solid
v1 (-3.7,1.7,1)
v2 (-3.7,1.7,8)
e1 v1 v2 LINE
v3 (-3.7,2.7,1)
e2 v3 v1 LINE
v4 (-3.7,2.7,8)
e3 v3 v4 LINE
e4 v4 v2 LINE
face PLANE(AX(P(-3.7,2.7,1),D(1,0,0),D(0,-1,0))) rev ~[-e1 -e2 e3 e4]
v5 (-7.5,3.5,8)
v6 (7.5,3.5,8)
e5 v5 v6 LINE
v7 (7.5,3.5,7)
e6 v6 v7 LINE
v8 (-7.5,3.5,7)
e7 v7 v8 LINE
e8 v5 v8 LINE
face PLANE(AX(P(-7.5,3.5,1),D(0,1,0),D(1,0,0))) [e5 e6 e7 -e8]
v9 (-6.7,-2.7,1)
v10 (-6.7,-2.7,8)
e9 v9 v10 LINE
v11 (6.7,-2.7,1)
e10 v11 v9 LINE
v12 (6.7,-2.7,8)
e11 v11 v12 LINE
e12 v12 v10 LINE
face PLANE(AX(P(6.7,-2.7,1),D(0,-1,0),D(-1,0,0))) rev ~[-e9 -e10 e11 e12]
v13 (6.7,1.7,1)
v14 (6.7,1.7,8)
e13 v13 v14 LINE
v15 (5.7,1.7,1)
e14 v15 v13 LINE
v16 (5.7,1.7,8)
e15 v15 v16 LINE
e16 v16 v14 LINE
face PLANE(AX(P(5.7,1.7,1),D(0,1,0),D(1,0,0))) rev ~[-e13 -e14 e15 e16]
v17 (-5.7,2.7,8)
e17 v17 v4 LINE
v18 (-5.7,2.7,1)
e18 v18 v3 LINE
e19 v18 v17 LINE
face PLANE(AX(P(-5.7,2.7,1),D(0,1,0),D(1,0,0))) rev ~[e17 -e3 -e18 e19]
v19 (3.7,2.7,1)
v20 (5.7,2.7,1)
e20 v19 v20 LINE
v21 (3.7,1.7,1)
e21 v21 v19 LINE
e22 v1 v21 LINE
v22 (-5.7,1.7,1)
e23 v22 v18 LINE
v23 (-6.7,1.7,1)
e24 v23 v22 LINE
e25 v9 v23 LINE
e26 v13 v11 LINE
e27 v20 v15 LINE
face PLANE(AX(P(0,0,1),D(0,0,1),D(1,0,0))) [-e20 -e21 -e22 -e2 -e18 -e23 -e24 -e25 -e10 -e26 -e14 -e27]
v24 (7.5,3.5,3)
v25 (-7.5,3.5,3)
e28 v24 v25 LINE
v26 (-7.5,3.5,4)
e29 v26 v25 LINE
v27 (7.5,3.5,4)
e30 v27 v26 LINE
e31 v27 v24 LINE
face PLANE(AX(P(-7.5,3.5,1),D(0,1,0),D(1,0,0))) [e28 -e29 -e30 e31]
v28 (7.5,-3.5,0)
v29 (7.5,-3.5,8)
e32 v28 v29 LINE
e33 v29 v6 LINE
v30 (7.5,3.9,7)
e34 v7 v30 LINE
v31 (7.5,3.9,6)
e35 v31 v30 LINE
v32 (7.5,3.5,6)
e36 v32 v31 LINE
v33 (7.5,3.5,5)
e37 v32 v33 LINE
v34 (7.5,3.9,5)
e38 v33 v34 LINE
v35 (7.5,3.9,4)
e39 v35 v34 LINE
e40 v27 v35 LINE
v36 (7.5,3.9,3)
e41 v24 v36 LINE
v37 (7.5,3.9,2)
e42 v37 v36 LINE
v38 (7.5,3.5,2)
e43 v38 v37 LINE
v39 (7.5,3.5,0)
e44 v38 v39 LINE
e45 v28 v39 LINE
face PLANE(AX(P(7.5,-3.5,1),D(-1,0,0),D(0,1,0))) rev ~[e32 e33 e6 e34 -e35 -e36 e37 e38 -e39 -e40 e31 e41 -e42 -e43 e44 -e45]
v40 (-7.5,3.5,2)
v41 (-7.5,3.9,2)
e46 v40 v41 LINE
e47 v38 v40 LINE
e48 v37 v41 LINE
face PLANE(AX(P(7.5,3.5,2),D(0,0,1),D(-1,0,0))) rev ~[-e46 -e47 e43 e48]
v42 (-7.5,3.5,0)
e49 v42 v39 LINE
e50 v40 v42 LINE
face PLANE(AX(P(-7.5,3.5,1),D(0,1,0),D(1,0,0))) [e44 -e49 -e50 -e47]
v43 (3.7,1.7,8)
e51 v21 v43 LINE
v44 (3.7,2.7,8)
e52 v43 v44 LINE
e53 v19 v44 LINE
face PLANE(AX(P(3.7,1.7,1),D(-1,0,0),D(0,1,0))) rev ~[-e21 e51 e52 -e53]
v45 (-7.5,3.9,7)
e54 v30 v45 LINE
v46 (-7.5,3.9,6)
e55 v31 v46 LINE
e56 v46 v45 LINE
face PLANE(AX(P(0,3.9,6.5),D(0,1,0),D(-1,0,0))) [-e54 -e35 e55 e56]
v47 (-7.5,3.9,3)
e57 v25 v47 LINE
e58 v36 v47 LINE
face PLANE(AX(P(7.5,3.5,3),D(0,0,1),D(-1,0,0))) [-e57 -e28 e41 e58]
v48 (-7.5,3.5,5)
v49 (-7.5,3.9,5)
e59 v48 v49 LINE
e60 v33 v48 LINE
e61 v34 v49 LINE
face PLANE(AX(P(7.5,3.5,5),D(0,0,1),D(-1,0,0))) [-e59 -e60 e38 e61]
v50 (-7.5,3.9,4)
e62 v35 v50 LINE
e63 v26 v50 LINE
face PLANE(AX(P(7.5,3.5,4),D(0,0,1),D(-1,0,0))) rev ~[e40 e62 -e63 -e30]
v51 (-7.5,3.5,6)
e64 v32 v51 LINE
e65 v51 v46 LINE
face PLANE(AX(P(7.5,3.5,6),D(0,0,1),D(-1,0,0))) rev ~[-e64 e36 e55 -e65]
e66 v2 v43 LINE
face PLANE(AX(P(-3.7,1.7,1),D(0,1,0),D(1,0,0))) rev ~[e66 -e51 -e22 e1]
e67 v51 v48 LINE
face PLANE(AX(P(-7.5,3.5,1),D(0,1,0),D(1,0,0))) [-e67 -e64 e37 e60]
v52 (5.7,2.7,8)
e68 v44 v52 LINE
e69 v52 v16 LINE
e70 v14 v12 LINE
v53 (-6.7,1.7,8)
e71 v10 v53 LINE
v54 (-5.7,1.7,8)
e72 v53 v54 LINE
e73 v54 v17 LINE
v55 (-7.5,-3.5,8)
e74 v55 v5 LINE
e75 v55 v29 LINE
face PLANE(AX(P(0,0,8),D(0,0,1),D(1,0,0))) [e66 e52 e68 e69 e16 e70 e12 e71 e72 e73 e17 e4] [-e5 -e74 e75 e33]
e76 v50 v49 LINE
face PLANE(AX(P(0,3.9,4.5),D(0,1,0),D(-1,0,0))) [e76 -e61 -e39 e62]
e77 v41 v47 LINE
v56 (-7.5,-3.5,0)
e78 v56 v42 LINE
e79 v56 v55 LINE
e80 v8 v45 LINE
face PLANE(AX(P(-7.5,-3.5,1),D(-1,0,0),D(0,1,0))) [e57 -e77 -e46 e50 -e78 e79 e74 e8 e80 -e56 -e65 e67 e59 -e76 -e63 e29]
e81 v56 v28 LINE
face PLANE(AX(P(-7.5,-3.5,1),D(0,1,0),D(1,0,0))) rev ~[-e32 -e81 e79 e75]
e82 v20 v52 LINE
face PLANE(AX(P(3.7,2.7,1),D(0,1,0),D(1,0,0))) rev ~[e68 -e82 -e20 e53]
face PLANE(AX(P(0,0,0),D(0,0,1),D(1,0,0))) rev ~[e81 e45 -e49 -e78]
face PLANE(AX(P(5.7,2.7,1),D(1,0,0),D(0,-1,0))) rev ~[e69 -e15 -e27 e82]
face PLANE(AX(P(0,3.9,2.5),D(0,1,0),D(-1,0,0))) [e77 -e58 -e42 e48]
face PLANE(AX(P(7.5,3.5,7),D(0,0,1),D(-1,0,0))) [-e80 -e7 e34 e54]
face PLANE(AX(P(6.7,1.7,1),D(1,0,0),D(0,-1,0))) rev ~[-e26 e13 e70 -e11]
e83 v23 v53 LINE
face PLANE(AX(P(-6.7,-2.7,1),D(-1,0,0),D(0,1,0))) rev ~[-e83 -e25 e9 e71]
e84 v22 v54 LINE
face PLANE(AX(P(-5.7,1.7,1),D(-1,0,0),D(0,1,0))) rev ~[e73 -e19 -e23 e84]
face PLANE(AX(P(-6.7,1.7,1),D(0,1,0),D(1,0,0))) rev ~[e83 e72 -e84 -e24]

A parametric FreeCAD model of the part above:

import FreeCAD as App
import Part
import Sketcher
Q = App.Units.Quantity

doc = App.newDocument("Part")
body = doc.addObject("PartDesign::Body", "Body")

# Sketch on XY plane
sketch1 = doc.addObject("Sketcher::SketchObject", "Sketch")
body.addObject(sketch1)
sketch1.AttachmentSupport = (doc.XY_Plane, [""])
sketch1.MapMode = "FlatFace"
sketch1.addGeometry(Part.LineSegment(App.Vector(-8, 4, 0), App.Vector(-8, -4, 0)), False)
sketch1.addGeometry(Part.LineSegment(App.Vector(-8, -4, 0), App.Vector(8, -4, 0)), False)
sketch1.addGeometry(Part.LineSegment(App.Vector(8, -4, 0), App.Vector(8, 4, 0)), False)
sketch1.addGeometry(Part.LineSegment(App.Vector(8, 4, 0), App.Vector(-8, 4, 0)), False)
sketch1.addConstraint(Sketcher.Constraint("Coincident", 0, 2, 1, 1))
sketch1.addConstraint(Sketcher.Constraint("Coincident", 1, 2, 2, 1))
sketch1.addConstraint(Sketcher.Constraint("Coincident", 2, 2, 3, 1))
sketch1.addConstraint(Sketcher.Constraint("Coincident", 3, 2, 0, 1))
sketch1.addConstraint(Sketcher.Constraint("Vertical", 0))
sketch1.addConstraint(Sketcher.Constraint("Horizontal", 1))
sketch1.addConstraint(Sketcher.Constraint("Vertical", 2))
sketch1.addConstraint(Sketcher.Constraint("Horizontal", 3))
sketch1.addConstraint(Sketcher.Constraint("Symmetric", 0, 2, 2, 2, -1, 1))
sketch1.addConstraint(Sketcher.Constraint("DistanceX", 1, 1, 1, 2, Q("15 mm")))
sketch1.addConstraint(Sketcher.Constraint("DistanceY", 0, 2, 0, 1, Q("7 mm")))
pad1 = doc.addObject("PartDesign::Pad", "Pad")
body.addObject(pad1)
pad1.Profile = sketch1
pad1.Length = 1

# Sketch on XY plane
sketch2 = doc.addObject("Sketcher::SketchObject", "Sketch001")
body.addObject(sketch2)
sketch2.AttachmentSupport = (doc.XY_Plane, [""])
sketch2.MapMode = "FlatFace"
sketch2.AttachmentOffset = App.Placement(App.Vector(0, 0, 1), App.Rotation())
sketch2.addGeometry(Part.LineSegment(App.Vector(-7.5, 3.5, 0), App.Vector(-7.5, -3.5, 0)), False)
sketch2.addGeometry(Part.LineSegment(App.Vector(-7.5, -3.5, 0), App.Vector(7.5, -3.5, 0)), False)
sketch2.addGeometry(Part.LineSegment(App.Vector(7.5, -3.5, 0), App.Vector(7.5, 3.5, 0)), False)
sketch2.addGeometry(Part.LineSegment(App.Vector(7.5, 3.5, 0), App.Vector(-7.5, 3.5, 0)), False)
sketch2.addGeometry(Part.LineSegment(App.Vector(6.7, -2.7, 0), App.Vector(-6.7, -2.7, 0)), False)
sketch2.addGeometry(Part.LineSegment(App.Vector(-6.7, -2.7, 0), App.Vector(-6.7, 1.7, 0)), False)
sketch2.addGeometry(Part.LineSegment(App.Vector(-6.7, 1.7, 0), App.Vector(-5.7, 1.7, 0)), False)
sketch2.addGeometry(Part.LineSegment(App.Vector(-5.7, 1.7, 0), App.Vector(-5.7, 2.7, 0)), False)
sketch2.addGeometry(Part.LineSegment(App.Vector(-5.7, 2.7, 0), App.Vector(-3.7, 2.7, 0)), False)
sketch2.addGeometry(Part.LineSegment(App.Vector(-3.7, 2.7, 0), App.Vector(-3.7, 1.7, 0)), False)
sketch2.addGeometry(Part.LineSegment(App.Vector(-3.7, 1.7, 0), App.Vector(3.7, 1.7, 0)), False)
sketch2.addGeometry(Part.LineSegment(App.Vector(3.7, 1.7, 0), App.Vector(3.7, 2.7, 0)), False)
sketch2.addGeometry(Part.LineSegment(App.Vector(3.7, 2.7, 0), App.Vector(5.7, 2.7, 0)), False)
sketch2.addGeometry(Part.LineSegment(App.Vector(5.7, 2.7, 0), App.Vector(5.7, 1.7, 0)), False)
sketch2.addGeometry(Part.LineSegment(App.Vector(5.7, 1.7, 0), App.Vector(6.7, 1.7, 0)), False)
sketch2.addGeometry(Part.LineSegment(App.Vector(6.7, 1.7, 0), App.Vector(6.7, -2.7, 0)), False)
sketch2.addConstraint(Sketcher.Constraint("Coincident", 0, 2, 1, 1))
sketch2.addConstraint(Sketcher.Constraint("Coincident", 1, 2, 2, 1))
sketch2.addConstraint(Sketcher.Constraint("Coincident", 2, 2, 3, 1))
sketch2.addConstraint(Sketcher.Constraint("Coincident", 3, 2, 0, 1))
sketch2.addConstraint(Sketcher.Constraint("Coincident", 4, 2, 5, 1))
sketch2.addConstraint(Sketcher.Constraint("Coincident", 5, 2, 6, 1))
sketch2.addConstraint(Sketcher.Constraint("Coincident", 6, 2, 7, 1))
sketch2.addConstraint(Sketcher.Constraint("Coincident", 7, 2, 8, 1))
sketch2.addConstraint(Sketcher.Constraint("Coincident", 8, 2, 9, 1))
sketch2.addConstraint(Sketcher.Constraint("Coincident", 9, 2, 10, 1))
sketch2.addConstraint(Sketcher.Constraint("Coincident", 10, 2, 11, 1))
sketch2.addConstraint(Sketcher.Constraint("Coincident", 11, 2, 12, 1))
sketch2.addConstraint(Sketcher.Constraint("Coincident", 12, 2, 13, 1))
sketch2.addConstraint(Sketcher.Constraint("Coincident", 13, 2, 14, 1))
sketch2.addConstraint(Sketcher.Constraint("Coincident", 14, 2, 15, 1))
sketch2.addConstraint(Sketcher.Constraint("Coincident", 15, 2, 4, 1))
sketch2.addConstraint(Sketcher.Constraint("Vertical", 0))
sketch2.addConstraint(Sketcher.Constraint("Horizontal", 1))
sketch2.addConstraint(Sketcher.Constraint("Vertical", 2))
sketch2.addConstraint(Sketcher.Constraint("Horizontal", 3))
sketch2.addConstraint(Sketcher.Constraint("Horizontal", 4))
sketch2.addConstraint(Sketcher.Constraint("Vertical", 5))
sketch2.addConstraint(Sketcher.Constraint("Horizontal", 6))
sketch2.addConstraint(Sketcher.Constraint("Vertical", 7))
sketch2.addConstraint(Sketcher.Constraint("Horizontal", 8))
sketch2.addConstraint(Sketcher.Constraint("Vertical", 9))
sketch2.addConstraint(Sketcher.Constraint("Horizontal", 10))
sketch2.addConstraint(Sketcher.Constraint("Vertical", 11))
sketch2.addConstraint(Sketcher.Constraint("Horizontal", 12))
sketch2.addConstraint(Sketcher.Constraint("Vertical", 13))
sketch2.addConstraint(Sketcher.Constraint("Horizontal", 14))
sketch2.addConstraint(Sketcher.Constraint("Vertical", 15))
sketch2.addConstraint(Sketcher.Constraint("Symmetric", 0, 2, 2, 2, -1, 1))
sketch2.addConstraint(Sketcher.Constraint("Symmetric", 8, 2, 11, 2, -2))
sketch2.addConstraint(Sketcher.Constraint("Symmetric", 6, 2, 13, 2, -2))
sketch2.addConstraint(Sketcher.Constraint("Horizontal", 6, 2, 9, 2))
sketch2.addConstraint(Sketcher.Constraint("Equal", 6, 14))
sketch2.addConstraint(Sketcher.Constraint("Equal", 14, 7))
sketch2.addConstraint(Sketcher.Constraint("DistanceX", 1, 1, 1, 2, Q("15 mm")))
sketch2.addConstraint(Sketcher.Constraint("DistanceX", 6, 1, 6, 2, Q("1 mm")))
sketch2.addConstraint(Sketcher.Constraint("DistanceX", 8, 1, 8, 2, Q("2 mm")))
sketch2.addConstraint(Sketcher.Constraint("DistanceY", 0, 2, 0, 1, Q("7 mm")))
sketch2.addConstraint(Sketcher.Constraint("DistanceX", 4, 2, 4, 1, Q("13.4 mm")))
sketch2.addConstraint(Sketcher.Constraint("DistanceY", 5, 1, 5, 2, Q("4.4 mm")))
sketch2.addConstraint(Sketcher.Constraint("DistanceY", 4, 2, -1, 1, Q("2.7 mm")))
pad2 = doc.addObject("PartDesign::Pad", "Pad001")
body.addObject(pad2)
pad2.Profile = sketch2
pad2.Length = 7

# Sketch on XZ plane
sketch3 = doc.addObject("Sketcher::SketchObject", "Sketch002")
body.addObject(sketch3)
sketch3.AttachmentSupport = (doc.XZ_Plane, [""])
sketch3.MapMode = "FlatFace"
sketch3.AttachmentOffset = App.Placement(App.Vector(0, 0, -3.5), App.Rotation())
sketch3.addGeometry(Part.LineSegment(App.Vector(7.5, 7, 0), App.Vector(7.5, 6, 0)), False)
sketch3.addGeometry(Part.LineSegment(App.Vector(7.5, 6, 0), App.Vector(-7.5, 6, 0)), False)
sketch3.addGeometry(Part.LineSegment(App.Vector(-7.5, 6, 0), App.Vector(-7.5, 7, 0)), False)
sketch3.addGeometry(Part.LineSegment(App.Vector(-7.5, 7, 0), App.Vector(7.5, 7, 0)), False)
sketch3.addGeometry(Part.LineSegment(App.Vector(7.5, 5, 0), App.Vector(7.5, 4, 0)), False)
sketch3.addGeometry(Part.LineSegment(App.Vector(7.5, 4, 0), App.Vector(-7.5, 4, 0)), False)
sketch3.addGeometry(Part.LineSegment(App.Vector(-7.5, 4, 0), App.Vector(-7.5, 5, 0)), False)
sketch3.addGeometry(Part.LineSegment(App.Vector(-7.5, 5, 0), App.Vector(7.5, 5, 0)), False)
sketch3.addGeometry(Part.LineSegment(App.Vector(7.5, 3, 0), App.Vector(7.5, 2, 0)), False)
sketch3.addGeometry(Part.LineSegment(App.Vector(7.5, 2, 0), App.Vector(-7.5, 2, 0)), False)
sketch3.addGeometry(Part.LineSegment(App.Vector(-7.5, 2, 0), App.Vector(-7.5, 3, 0)), False)
sketch3.addGeometry(Part.LineSegment(App.Vector(-7.5, 3, 0), App.Vector(7.5, 3, 0)), False)
sketch3.addConstraint(Sketcher.Constraint("Coincident", 0, 2, 1, 1))
sketch3.addConstraint(Sketcher.Constraint("Coincident", 1, 2, 2, 1))
sketch3.addConstraint(Sketcher.Constraint("Coincident", 2, 2, 3, 1))
sketch3.addConstraint(Sketcher.Constraint("Coincident", 3, 2, 0, 1))
sketch3.addConstraint(Sketcher.Constraint("Coincident", 4, 2, 5, 1))
sketch3.addConstraint(Sketcher.Constraint("Coincident", 5, 2, 6, 1))
sketch3.addConstraint(Sketcher.Constraint("Coincident", 6, 2, 7, 1))
sketch3.addConstraint(Sketcher.Constraint("Coincident", 7, 2, 4, 1))
sketch3.addConstraint(Sketcher.Constraint("Coincident", 8, 2, 9, 1))
sketch3.addConstraint(Sketcher.Constraint("Coincident", 9, 2, 10, 1))
sketch3.addConstraint(Sketcher.Constraint("Coincident", 10, 2, 11, 1))
sketch3.addConstraint(Sketcher.Constraint("Coincident", 11, 2, 8, 1))
sketch3.addConstraint(Sketcher.Constraint("Vertical", 0))
sketch3.addConstraint(Sketcher.Constraint("Horizontal", 1))
sketch3.addConstraint(Sketcher.Constraint("Vertical", 2))
sketch3.addConstraint(Sketcher.Constraint("Horizontal", 3))
sketch3.addConstraint(Sketcher.Constraint("Vertical", 4))
sketch3.addConstraint(Sketcher.Constraint("Horizontal", 5))
sketch3.addConstraint(Sketcher.Constraint("Vertical", 6))
sketch3.addConstraint(Sketcher.Constraint("Horizontal", 7))
sketch3.addConstraint(Sketcher.Constraint("Vertical", 8))
sketch3.addConstraint(Sketcher.Constraint("Horizontal", 9))
sketch3.addConstraint(Sketcher.Constraint("Vertical", 10))
sketch3.addConstraint(Sketcher.Constraint("Horizontal", 11))
sketch3.addConstraint(Sketcher.Constraint("Vertical", 3, 2, 4, 2))
sketch3.addConstraint(Sketcher.Constraint("Vertical", 2, 2, 5, 2))
sketch3.addConstraint(Sketcher.Constraint("Vertical", 7, 2, 8, 2))
sketch3.addConstraint(Sketcher.Constraint("Vertical", 6, 2, 9, 2))
sketch3.addConstraint(Sketcher.Constraint("Equal", 2, 4))
sketch3.addConstraint(Sketcher.Constraint("Equal", 6, 8))
sketch3.addConstraint(Sketcher.Constraint("DistanceX", 1, 2, 1, 1, Q("15 mm")))
sketch3.addConstraint(Sketcher.Constraint("DistanceY", 0, 2, 0, 1, Q("1 mm")))
sketch3.addConstraint(Sketcher.Constraint("DistanceY", -1, 1, 0, 2, Q("6 mm")))
sketch3.addConstraint(Sketcher.Constraint("DistanceY", -1, 1, 4, 2, Q("4 mm")))
sketch3.addConstraint(Sketcher.Constraint("DistanceY", -1, 1, 8, 2, Q("2 mm")))
sketch3.addConstraint(Sketcher.Constraint("DistanceX", -1, 1, 0, 2, Q("7.5 mm")))
pad3 = doc.addObject("PartDesign::Pad", "Pad002")
body.addObject(pad3)
pad3.Profile = sketch3
pad3.Length = 0.4
pad3.Reversed = True

doc.recompute()
